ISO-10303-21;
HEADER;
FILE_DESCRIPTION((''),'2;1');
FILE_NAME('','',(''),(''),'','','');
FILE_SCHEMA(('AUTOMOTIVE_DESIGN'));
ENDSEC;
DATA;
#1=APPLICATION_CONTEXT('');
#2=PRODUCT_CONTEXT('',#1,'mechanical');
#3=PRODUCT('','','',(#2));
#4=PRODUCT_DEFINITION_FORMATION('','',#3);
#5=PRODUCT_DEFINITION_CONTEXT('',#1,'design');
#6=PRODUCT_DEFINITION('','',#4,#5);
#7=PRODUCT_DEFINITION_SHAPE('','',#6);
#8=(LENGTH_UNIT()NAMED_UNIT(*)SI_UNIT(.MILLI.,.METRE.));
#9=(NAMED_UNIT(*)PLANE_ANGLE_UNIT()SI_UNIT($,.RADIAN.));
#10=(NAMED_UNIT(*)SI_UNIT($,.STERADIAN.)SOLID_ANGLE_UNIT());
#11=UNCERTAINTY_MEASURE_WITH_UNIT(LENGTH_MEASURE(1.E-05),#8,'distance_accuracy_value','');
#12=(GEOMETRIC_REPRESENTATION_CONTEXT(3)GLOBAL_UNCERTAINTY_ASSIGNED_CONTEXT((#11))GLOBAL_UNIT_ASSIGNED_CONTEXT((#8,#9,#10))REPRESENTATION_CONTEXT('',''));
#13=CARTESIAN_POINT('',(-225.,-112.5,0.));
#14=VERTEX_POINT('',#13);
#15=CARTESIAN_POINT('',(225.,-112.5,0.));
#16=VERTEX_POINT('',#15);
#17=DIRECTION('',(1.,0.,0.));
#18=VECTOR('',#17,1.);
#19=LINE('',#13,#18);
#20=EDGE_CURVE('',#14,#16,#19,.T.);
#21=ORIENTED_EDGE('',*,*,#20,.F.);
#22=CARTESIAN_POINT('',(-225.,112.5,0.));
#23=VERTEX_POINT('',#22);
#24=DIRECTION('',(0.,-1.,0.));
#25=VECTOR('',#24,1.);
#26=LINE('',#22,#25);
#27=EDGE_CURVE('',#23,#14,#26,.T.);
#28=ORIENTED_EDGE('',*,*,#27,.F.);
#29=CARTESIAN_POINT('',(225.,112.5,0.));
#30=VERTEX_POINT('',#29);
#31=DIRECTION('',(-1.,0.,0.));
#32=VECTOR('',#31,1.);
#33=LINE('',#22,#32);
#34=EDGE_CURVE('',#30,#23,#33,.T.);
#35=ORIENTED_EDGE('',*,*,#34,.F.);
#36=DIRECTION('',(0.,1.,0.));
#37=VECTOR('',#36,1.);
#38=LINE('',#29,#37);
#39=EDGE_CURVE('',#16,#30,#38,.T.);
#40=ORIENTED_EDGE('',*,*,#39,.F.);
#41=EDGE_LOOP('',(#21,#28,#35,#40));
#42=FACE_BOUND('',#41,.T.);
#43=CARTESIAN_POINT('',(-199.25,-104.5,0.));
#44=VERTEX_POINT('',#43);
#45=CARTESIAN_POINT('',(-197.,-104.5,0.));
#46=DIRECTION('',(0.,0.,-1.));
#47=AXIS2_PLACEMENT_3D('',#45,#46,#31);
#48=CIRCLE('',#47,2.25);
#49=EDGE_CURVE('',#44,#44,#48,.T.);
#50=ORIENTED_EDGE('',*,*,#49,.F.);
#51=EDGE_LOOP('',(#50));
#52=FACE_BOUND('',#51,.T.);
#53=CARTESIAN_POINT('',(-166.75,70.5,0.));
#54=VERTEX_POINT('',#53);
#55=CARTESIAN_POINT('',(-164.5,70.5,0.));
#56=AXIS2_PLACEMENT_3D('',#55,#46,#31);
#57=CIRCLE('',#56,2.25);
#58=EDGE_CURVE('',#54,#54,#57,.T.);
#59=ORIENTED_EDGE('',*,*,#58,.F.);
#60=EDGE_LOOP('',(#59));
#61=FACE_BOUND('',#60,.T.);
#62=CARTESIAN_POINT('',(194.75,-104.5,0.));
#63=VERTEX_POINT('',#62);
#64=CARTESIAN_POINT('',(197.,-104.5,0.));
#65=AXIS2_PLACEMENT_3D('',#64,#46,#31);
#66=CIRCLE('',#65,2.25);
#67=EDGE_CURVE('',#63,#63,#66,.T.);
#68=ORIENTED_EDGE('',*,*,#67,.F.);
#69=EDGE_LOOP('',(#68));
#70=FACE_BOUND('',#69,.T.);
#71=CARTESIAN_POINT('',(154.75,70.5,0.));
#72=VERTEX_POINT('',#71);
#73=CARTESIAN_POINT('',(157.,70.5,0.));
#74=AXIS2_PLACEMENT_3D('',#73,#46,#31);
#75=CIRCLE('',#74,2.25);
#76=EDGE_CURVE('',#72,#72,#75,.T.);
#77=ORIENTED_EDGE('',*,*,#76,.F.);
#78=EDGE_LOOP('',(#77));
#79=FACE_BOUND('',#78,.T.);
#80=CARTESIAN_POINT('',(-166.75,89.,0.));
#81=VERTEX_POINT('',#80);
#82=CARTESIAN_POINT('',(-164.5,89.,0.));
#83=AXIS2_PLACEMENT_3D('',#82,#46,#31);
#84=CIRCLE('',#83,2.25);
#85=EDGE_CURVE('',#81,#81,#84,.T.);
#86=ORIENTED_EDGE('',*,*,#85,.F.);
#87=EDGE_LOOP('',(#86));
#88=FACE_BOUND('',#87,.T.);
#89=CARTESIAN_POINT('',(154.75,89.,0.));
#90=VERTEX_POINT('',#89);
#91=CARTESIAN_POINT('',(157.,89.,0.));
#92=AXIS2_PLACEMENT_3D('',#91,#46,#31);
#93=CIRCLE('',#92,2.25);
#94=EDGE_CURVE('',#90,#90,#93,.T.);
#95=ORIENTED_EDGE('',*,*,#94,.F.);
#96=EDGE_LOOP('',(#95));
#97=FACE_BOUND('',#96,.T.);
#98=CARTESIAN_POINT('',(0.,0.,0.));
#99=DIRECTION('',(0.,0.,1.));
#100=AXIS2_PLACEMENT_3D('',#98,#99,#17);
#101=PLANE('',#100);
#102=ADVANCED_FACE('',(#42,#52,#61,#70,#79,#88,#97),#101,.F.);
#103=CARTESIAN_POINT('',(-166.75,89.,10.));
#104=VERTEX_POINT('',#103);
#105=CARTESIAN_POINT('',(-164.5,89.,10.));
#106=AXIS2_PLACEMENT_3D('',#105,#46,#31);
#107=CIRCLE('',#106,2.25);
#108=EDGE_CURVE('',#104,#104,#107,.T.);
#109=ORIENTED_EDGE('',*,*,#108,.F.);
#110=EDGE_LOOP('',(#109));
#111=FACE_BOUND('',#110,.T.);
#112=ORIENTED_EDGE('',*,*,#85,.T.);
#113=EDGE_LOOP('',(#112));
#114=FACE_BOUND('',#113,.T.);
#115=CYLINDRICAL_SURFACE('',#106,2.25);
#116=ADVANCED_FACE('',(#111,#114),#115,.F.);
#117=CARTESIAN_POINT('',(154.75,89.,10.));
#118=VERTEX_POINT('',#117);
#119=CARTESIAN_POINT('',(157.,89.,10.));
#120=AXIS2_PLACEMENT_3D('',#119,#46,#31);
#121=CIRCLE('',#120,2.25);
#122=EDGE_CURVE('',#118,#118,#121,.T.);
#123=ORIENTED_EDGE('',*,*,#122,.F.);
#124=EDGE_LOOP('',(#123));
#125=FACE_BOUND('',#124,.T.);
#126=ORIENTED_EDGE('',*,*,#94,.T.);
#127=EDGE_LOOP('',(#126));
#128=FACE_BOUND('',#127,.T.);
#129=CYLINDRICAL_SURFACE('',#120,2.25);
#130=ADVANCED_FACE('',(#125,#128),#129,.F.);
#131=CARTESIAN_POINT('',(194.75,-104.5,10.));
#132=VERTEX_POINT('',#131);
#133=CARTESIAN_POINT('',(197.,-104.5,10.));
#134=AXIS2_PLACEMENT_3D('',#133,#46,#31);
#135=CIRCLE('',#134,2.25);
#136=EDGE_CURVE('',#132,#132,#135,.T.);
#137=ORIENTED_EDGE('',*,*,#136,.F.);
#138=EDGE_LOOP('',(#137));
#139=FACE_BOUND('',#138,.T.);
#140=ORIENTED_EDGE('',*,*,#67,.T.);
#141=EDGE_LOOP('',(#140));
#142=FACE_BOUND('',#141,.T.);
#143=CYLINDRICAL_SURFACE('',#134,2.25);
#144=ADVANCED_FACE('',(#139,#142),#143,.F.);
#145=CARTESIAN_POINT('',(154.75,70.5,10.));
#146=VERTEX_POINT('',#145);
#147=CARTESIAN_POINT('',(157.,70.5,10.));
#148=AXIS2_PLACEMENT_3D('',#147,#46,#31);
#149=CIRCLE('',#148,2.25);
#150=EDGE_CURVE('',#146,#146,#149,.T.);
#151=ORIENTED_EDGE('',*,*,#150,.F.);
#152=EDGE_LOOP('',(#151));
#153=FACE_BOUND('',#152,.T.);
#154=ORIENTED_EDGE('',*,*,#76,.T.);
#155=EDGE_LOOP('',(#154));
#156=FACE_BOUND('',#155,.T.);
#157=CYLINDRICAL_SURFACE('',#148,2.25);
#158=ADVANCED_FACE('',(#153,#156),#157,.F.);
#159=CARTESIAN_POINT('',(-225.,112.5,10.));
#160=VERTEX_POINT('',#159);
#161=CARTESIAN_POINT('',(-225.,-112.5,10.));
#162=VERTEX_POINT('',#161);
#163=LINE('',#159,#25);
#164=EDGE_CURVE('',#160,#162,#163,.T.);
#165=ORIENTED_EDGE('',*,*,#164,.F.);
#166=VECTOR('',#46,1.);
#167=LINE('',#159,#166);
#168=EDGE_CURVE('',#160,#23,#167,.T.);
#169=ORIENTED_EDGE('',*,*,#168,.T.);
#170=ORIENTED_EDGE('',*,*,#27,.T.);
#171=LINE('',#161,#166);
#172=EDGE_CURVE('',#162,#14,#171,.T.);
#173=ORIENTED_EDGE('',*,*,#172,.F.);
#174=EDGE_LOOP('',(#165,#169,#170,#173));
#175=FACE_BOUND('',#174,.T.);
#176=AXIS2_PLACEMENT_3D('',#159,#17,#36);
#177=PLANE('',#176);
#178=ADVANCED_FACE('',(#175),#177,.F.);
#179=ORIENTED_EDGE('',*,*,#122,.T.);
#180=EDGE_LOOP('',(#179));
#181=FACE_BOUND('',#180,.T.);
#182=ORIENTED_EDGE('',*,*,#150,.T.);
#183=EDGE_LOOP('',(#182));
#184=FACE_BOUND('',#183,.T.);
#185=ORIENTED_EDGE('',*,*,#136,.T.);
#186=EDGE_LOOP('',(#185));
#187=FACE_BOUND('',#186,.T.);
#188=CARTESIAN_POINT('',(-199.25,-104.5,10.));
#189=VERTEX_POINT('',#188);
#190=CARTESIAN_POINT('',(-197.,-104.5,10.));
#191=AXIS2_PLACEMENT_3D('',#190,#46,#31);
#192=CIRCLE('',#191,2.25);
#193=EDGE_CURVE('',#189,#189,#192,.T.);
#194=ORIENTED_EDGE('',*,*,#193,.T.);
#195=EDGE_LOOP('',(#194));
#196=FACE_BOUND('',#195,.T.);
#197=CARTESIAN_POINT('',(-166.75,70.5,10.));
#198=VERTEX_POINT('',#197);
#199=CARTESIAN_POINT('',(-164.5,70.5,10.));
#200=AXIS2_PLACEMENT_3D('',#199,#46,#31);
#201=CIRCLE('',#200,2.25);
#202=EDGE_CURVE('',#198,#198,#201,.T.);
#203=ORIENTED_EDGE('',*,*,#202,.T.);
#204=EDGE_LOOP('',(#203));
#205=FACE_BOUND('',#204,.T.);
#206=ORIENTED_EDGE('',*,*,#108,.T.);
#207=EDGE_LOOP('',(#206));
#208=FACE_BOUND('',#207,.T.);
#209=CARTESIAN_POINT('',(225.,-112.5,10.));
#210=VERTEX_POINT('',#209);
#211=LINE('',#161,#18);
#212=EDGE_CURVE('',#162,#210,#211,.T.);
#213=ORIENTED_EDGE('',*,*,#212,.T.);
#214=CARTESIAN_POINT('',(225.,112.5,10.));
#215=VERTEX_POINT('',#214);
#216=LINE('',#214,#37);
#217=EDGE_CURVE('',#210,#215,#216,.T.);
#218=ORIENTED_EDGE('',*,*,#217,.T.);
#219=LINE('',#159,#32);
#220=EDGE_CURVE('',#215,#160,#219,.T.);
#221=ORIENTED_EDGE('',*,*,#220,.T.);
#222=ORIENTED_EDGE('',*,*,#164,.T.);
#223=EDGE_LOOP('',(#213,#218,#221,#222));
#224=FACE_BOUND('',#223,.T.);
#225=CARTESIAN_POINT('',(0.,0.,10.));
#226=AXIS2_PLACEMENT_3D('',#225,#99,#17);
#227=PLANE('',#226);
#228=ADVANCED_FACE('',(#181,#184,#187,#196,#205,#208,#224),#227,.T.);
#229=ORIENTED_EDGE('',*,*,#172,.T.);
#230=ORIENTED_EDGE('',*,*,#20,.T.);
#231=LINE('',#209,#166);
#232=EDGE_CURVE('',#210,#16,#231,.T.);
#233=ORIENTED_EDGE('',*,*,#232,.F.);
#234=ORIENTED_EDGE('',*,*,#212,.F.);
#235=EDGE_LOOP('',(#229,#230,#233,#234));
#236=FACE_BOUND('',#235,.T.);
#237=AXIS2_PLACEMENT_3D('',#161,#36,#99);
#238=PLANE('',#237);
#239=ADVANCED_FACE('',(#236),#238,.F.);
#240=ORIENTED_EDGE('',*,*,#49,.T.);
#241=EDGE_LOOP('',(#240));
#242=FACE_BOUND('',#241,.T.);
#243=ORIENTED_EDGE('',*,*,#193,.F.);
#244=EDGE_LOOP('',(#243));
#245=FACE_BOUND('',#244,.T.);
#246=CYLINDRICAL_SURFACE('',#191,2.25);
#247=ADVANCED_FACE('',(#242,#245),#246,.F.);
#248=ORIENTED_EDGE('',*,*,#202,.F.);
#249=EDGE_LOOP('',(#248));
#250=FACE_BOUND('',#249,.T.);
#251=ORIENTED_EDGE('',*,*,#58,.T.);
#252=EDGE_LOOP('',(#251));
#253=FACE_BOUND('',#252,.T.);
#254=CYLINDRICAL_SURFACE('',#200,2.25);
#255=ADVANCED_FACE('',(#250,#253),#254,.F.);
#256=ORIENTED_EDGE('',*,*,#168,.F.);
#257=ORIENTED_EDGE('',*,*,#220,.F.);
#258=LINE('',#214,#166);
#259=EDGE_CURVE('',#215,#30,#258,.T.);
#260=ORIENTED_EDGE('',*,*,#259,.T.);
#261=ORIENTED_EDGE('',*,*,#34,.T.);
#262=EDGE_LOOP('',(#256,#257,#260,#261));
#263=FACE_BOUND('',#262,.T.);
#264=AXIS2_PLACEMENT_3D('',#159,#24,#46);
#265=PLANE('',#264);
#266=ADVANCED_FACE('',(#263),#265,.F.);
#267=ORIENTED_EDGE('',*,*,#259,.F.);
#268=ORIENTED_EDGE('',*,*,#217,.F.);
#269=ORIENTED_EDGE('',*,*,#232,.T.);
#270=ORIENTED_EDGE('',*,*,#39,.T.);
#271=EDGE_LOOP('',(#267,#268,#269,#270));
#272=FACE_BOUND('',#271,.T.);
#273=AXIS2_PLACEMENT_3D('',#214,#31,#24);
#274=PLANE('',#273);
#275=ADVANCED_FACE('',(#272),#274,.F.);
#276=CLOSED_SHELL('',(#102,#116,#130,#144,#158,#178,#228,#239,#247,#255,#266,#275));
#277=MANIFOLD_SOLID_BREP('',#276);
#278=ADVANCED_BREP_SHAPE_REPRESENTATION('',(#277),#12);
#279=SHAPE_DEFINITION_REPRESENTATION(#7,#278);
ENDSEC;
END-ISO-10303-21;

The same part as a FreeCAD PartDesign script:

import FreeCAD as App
import Part
import Sketcher

doc = App.newDocument("Part")
params = doc.addObject("Spreadsheet::Sheet", "Params")
for row, (alias, value) in enumerate([
    ("sketch1_width", "450 mm"),
    ("sketch1_height", "225 mm"),
    ("pad1_length", "10 mm"),
    ("sketch2_diameter", "4.5 mm"),
    ("pocket1_length", "10 mm"),
    ("sketch3_diameter", "4.5 mm"),
    ("pocket2_length", "10 mm"),
], start=1):
    params.set(f"A{row}", alias)
    params.set(f"B{row}", "=" + value)
    params.setAlias(f"B{row}", alias)

body = doc.addObject("PartDesign::Body", "Body")

# Sketch on XY plane
sketch1 = body.newObject("Sketcher::SketchObject", "Sketch")
sketch1.AttachmentSupport = (doc.getObject("XY_Plane"), [""])
sketch1.MapMode = "FlatFace"
sketch1.addGeometry(Part.LineSegment(App.Vector(-225, 112, 0), App.Vector(-225, -112, 0)), False)
sketch1.addGeometry(Part.LineSegment(App.Vector(-225, -112, 0), App.Vector(225, -112, 0)), False)
sketch1.addGeometry(Part.LineSegment(App.Vector(225, -112, 0), App.Vector(225, 112, 0)), False)
sketch1.addGeometry(Part.LineSegment(App.Vector(225, 112, 0), App.Vector(-225, 112, 0)), False)
sketch1.addConstraint(Sketcher.Constraint("Coincident", 0, 2, 1, 1))
sketch1.addConstraint(Sketcher.Constraint("Coincident", 1, 2, 2, 1))
sketch1.addConstraint(Sketcher.Constraint("Coincident", 2, 2, 3, 1))
sketch1.addConstraint(Sketcher.Constraint("Coincident", 3, 2, 0, 1))
sketch1.addConstraint(Sketcher.Constraint("Vertical", 0))
sketch1.addConstraint(Sketcher.Constraint("Horizontal", 1))
sketch1.addConstraint(Sketcher.Constraint("Vertical", 2))
sketch1.addConstraint(Sketcher.Constraint("Horizontal", 3))
sketch1.addConstraint(Sketcher.Constraint("Symmetric", 0, 2, 2, 2, -1, 1))
sketch1.addConstraint(Sketcher.Constraint("DistanceX", 1, 1, 1, 2, 450.0))
sketch1.addConstraint(Sketcher.Constraint("DistanceY", 0, 2, 0, 1, 225.0))
sketch1.setExpression("Constraints[9]", "Params.sketch1_width")
sketch1.setExpression("Constraints[10]", "Params.sketch1_height")
pad1 = body.newObject("PartDesign::Pad", "Pad")
pad1.Profile = sketch1
pad1.setExpression("Length", "Params.pad1_length")

# Sketch on XY plane
sketch2 = body.newObject("Sketcher::SketchObject", "Sketch001")
sketch2.AttachmentSupport = (doc.getObject("XY_Plane"), [""])
sketch2.MapMode = "FlatFace"
sketch2.addGeometry(Part.Circle(App.Vector(157, 89, 0), App.Vector(0, 0, 1), 2.2), False)
sketch2.addGeometry(Part.Circle(App.Vector(157, 70.5, 0), App.Vector(0, 0, 1), 2.2), False)
sketch2.addGeometry(Part.Circle(App.Vector(-164.5, 89, 0), App.Vector(0, 0, 1), 2.2), False)
sketch2.addGeometry(Part.Circle(App.Vector(-164.5, 70.5, 0), App.Vector(0, 0, 1), 2.2), False)
sketch2.addConstraint(Sketcher.Constraint("Equal", 0, 1))
sketch2.addConstraint(Sketcher.Constraint("Equal", 1, 2))
sketch2.addConstraint(Sketcher.Constraint("Equal", 2, 3))
sketch2.addConstraint(Sketcher.Constraint("Horizontal", 0, 3, 2, 3))
sketch2.addConstraint(Sketcher.Constraint("Horizontal", 1, 3, 3, 3))
sketch2.addConstraint(Sketcher.Constraint("Vertical", 0, 3, 1, 3))
sketch2.addConstraint(Sketcher.Constraint("Vertical", 2, 3, 3, 3))
sketch2.addConstraint(Sketcher.Constraint("Diameter", 0, 4.5))
sketch2.addConstraint(Sketcher.Constraint("DistanceX", -1, 1, 0, 3, 157.0))
sketch2.addConstraint(Sketcher.Constraint("DistanceY", -1, 1, 0, 3, 89.0))
sketch2.addConstraint(Sketcher.Constraint("DistanceY", -1, 1, 1, 3, 70.5))
sketch2.addConstraint(Sketcher.Constraint("DistanceX", 2, 3, -1, 1, 164.5))
sketch2.setExpression("Constraints[7]", "Params.sketch2_diameter")
pocket1 = body.newObject("PartDesign::Pocket", "Pocket")
pocket1.Profile = sketch2
pocket1.setExpression("Length", "Params.pocket1_length")
pocket1.Reversed = True

# Sketch on XY plane
sketch3 = body.newObject("Sketcher::SketchObject", "Sketch002")
sketch3.AttachmentSupport = (doc.getObject("XY_Plane"), [""])
sketch3.MapMode = "FlatFace"
sketch3.addGeometry(Part.Circle(App.Vector(-197, -104.5, 0), App.Vector(0, 0, 1), 2.2), False)
sketch3.addGeometry(Part.Circle(App.Vector(197, -104.5, 0), App.Vector(0, 0, 1), 2.2), False)
sketch3.addConstraint(Sketcher.Constraint("Equal", 0, 1))
sketch3.addConstraint(Sketcher.Constraint("Symmetric", 0, 3, 1, 3, -2))
sketch3.addConstraint(Sketcher.Constraint("Diameter", 0, 4.5))
sketch3.addConstraint(Sketcher.Constraint("DistanceX", 0, 3, -1, 1, 197.0))
sketch3.addConstraint(Sketcher.Constraint("DistanceY", 0, 3, -1, 1, 104.5))
sketch3.setExpression("Constraints[2]", "Params.sketch3_diameter")
pocket2 = body.newObject("PartDesign::Pocket", "Pocket001")
pocket2.Profile = sketch3
pocket2.setExpression("Length", "Params.pocket2_length")
pocket2.Reversed = True

doc.recompute()
